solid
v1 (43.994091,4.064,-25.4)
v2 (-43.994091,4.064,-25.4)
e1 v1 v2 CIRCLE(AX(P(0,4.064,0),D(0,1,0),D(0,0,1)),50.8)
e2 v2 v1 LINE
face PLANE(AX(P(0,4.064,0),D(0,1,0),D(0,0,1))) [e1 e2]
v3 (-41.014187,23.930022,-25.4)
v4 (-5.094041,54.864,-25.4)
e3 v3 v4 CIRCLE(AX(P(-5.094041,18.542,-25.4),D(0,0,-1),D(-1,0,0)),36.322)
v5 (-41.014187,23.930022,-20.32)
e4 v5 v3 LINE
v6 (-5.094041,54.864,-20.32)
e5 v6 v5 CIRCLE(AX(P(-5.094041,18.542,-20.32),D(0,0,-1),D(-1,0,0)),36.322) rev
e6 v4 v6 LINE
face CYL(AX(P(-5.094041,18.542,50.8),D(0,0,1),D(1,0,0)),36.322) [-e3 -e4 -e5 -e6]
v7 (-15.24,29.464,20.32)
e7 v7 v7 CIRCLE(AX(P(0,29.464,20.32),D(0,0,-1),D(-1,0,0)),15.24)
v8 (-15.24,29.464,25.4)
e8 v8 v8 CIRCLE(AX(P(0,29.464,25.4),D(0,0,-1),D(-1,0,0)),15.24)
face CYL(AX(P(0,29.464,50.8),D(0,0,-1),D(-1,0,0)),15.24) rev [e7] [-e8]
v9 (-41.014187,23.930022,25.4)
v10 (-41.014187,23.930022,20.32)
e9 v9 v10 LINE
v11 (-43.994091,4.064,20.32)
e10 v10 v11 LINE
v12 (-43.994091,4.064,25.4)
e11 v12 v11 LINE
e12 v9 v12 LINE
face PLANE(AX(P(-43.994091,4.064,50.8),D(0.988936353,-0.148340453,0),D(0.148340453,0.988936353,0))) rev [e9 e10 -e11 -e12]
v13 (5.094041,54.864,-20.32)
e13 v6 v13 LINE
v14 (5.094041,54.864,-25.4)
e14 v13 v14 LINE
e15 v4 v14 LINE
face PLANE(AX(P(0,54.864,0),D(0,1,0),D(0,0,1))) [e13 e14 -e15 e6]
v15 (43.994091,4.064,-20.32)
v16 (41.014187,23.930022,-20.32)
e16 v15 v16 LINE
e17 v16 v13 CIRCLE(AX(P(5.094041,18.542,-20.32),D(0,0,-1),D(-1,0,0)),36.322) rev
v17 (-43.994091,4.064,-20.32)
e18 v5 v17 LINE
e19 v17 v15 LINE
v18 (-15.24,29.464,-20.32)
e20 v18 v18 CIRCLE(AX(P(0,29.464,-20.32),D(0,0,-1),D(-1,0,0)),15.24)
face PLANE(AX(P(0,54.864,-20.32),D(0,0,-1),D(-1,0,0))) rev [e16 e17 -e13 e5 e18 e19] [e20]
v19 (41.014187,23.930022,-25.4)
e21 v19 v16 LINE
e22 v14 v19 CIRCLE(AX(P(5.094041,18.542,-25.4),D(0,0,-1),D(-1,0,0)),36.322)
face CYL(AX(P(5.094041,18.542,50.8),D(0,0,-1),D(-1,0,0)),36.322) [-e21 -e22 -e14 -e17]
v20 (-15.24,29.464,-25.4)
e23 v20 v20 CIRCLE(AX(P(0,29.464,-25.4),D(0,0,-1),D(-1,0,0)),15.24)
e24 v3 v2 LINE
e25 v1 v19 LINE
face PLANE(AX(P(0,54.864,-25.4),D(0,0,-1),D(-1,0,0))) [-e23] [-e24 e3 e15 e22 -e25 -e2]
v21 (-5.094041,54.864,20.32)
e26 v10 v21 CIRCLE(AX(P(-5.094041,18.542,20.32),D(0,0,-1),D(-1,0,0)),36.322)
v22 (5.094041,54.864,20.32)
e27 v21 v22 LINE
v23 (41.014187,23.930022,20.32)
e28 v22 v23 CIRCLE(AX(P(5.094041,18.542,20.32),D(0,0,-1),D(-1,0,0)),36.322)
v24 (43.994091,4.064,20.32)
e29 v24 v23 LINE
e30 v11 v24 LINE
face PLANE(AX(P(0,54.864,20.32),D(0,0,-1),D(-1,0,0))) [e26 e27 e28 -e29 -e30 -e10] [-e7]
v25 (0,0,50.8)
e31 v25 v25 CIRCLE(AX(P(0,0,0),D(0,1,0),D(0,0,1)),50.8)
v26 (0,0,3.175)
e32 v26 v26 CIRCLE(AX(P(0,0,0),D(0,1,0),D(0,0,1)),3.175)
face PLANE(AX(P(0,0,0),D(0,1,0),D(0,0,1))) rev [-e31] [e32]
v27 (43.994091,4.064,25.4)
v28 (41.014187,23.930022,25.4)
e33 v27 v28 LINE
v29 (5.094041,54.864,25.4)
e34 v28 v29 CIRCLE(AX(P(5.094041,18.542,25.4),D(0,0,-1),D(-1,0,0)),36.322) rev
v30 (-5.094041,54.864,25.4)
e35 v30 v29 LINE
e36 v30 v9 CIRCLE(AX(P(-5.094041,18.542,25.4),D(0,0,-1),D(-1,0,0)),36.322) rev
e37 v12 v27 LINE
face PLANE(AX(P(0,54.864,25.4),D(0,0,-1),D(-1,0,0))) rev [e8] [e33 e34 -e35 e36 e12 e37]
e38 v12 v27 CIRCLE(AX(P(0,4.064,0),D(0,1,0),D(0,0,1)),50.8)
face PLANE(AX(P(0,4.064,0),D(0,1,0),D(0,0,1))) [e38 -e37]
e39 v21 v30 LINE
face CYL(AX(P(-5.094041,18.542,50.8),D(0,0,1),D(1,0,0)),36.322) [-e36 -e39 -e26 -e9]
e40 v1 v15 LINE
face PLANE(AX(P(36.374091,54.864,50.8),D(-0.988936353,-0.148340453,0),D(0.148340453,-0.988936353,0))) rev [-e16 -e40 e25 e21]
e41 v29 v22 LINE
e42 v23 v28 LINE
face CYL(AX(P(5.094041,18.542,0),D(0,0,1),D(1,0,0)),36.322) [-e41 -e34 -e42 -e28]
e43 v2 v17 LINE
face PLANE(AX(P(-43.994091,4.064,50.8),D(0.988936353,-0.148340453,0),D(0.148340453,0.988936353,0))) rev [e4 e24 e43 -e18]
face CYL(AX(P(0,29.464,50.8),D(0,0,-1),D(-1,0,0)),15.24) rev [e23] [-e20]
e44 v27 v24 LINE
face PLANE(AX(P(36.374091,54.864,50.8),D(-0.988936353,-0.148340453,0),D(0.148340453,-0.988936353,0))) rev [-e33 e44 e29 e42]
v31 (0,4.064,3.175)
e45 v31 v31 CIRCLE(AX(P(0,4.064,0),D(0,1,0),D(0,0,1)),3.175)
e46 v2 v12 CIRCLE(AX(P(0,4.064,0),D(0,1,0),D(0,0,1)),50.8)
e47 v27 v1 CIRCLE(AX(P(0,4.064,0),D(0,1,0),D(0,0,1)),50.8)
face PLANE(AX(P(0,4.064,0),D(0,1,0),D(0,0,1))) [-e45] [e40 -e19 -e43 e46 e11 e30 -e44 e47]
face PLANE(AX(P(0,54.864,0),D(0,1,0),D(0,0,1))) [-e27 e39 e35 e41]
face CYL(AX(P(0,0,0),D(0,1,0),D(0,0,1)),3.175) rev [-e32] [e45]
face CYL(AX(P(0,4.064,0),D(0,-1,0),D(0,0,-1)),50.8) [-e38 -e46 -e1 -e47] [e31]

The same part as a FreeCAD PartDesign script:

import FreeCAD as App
import Part
import Sketcher

V = App.Vector
Q = App.Units.Quantity


def edges_at(feature, points):
    """Names of the edges that pass closest to the given points."""
    edges = feature.Shape.Edges
    near = lambda p: min(range(len(edges)), key=lambda i: edges[i].distToShape(Part.Vertex(*p))[0])
    return sorted({f"Edge{near(p) + 1}" for p in points})

doc = App.newDocument("Part")
body = doc.addObject("PartDesign::Body", "Body")

# Sketch on XZ plane
sketch1 = body.newObject("Sketcher::SketchObject", "Sketch")
sketch1.AttachmentSupport = (doc.getObject("XZ_Plane"), [""])
sketch1.MapMode = "FlatFace"
sketch1.addGeometry(Part.Circle(V(0, 0, 0), V(0, 0, 1), 50.8), False)
sketch1.addConstraint([
    Sketcher.Constraint("Coincident", 0, 3, -1, 1),
    Sketcher.Constraint("Diameter", 0, Q("4 in")),
])
pad1 = body.newObject("PartDesign::Pad", "Pad")
pad1.Profile = sketch1
pad1.Length = Q("0.16 in")
pad1.Reversed = True

# Sketch on XZ plane
sketch2 = body.newObject("Sketcher::SketchObject", "Sketch001")
sketch2.AttachmentSupport = (doc.getObject("XZ_Plane"), [""])
sketch2.MapMode = "FlatFace"
sketch2.AttachmentOffset = App.Placement(V(0, 0, -0.16 * 25.4), App.Rotation())
sketch2.addGeometry([
    Part.LineSegment(V(-43.994091, 20.32, 0), V(-43.994091, 25.4, 0)),  # 0
    Part.LineSegment(V(-43.994091, 25.4, 0), V(43.994091, 25.4, 0)),  # 1
    Part.LineSegment(V(43.994091, 25.4, 0), V(43.994091, 20.32, 0)),  # 2
    Part.LineSegment(V(43.994091, 20.32, 0), V(-43.994091, 20.32, 0)),  # 3
    Part.LineSegment(V(-43.994091, -25.4, 0), V(-43.994091, -20.32, 0)),  # 4
    Part.LineSegment(V(-43.994091, -20.32, 0), V(43.994091, -20.32, 0)),  # 5
    Part.LineSegment(V(43.994091, -20.32, 0), V(43.994091, -25.4, 0)),  # 6
    Part.LineSegment(V(43.994091, -25.4, 0), V(-43.994091, -25.4, 0)),  # 7
], False)
sketch2.addConstraint([
    Sketcher.Constraint("Coincident", 0, 2, 1, 1),
    Sketcher.Constraint("Coincident", 1, 2, 2, 1),
    Sketcher.Constraint("Coincident", 2, 2, 3, 1),
    Sketcher.Constraint("Coincident", 3, 2, 0, 1),
    Sketcher.Constraint("Coincident", 4, 2, 5, 1),
    Sketcher.Constraint("Coincident", 5, 2, 6, 1),
    Sketcher.Constraint("Coincident", 6, 2, 7, 1),
    Sketcher.Constraint("Coincident", 7, 2, 4, 1),
    Sketcher.Constraint("Vertical", 0),
    Sketcher.Constraint("Horizontal", 1),
    Sketcher.Constraint("Vertical", 2),
    Sketcher.Constraint("Horizontal", 3),
    Sketcher.Constraint("Vertical", 4),
    Sketcher.Constraint("Horizontal", 5),
    Sketcher.Constraint("Vertical", 6),
    Sketcher.Constraint("Horizontal", 7),
    Sketcher.Constraint("Symmetric", 2, 2, 4, 2, -1, 1),
    Sketcher.Constraint("Symmetric", 0, 2, 6, 2, -1, 1),
    Sketcher.Constraint("Vertical", 3, 2, 4, 2),
    Sketcher.Constraint("DistanceY", 0, 1, 0, 2, Q("0.2 in")),
    Sketcher.Constraint("DistanceY", -1, 1, 0, 2, Q("1 in")),
    Sketcher.Constraint("DistanceX", 1, 1, 1, 2, 87.988181),
])
pad2 = body.newObject("PartDesign::Pad", "Pad001")
pad2.Profile = sketch2
pad2.Length = Q("2 in")
pad2.Reversed = True

# Sketch on XY plane
sketch3 = body.newObject("Sketcher::SketchObject", "Sketch002")
sketch3.AttachmentSupport = (doc.getObject("XY_Plane"), [""])
sketch3.MapMode = "FlatFace"
sketch3.AttachmentOffset = App.Placement(V(0, 0, -1 * 25.4), App.Rotation())
sketch3.addGeometry([
    Part.LineSegment(V(43.994091, 54.864, 0), V(43.994091, 4.064, 0)),  # 0
    Part.LineSegment(V(43.994091, 4.064, 0), V(36.374091, 54.864, 0)),  # 1
    Part.LineSegment(V(36.374091, 54.864, 0), V(43.994091, 54.864, 0)),  # 2
    Part.LineSegment(V(-36.374091, 54.864, 0), V(-43.994091, 4.064, 0)),  # 3
    Part.LineSegment(V(-43.994091, 4.064, 0), V(-43.994091, 54.864, 0)),  # 4
    Part.LineSegment(V(-43.994091, 54.864, 0), V(-36.374091, 54.864, 0)),  # 5
], False)
sketch3.addConstraint([
    Sketcher.Constraint("Coincident", 0, 2, 1, 1),
    Sketcher.Constraint("Coincident", 1, 2, 2, 1),
    Sketcher.Constraint("Coincident", 2, 2, 0, 1),
    Sketcher.Constraint("Coincident", 3, 2, 4, 1),
    Sketcher.Constraint("Coincident", 4, 2, 5, 1),
    Sketcher.Constraint("Coincident", 5, 2, 3, 1),
    Sketcher.Constraint("Vertical", 0),
    Sketcher.Constraint("Horizontal", 2),
    Sketcher.Constraint("Vertical", 4),
    Sketcher.Constraint("Horizontal", 5),
    Sketcher.Constraint("Symmetric", 0, 2, 3, 2, -2),
    Sketcher.Constraint("Symmetric", 1, 2, 5, 2, -2),
    Sketcher.Constraint("DistanceY", 0, 2, 0, 1, Q("2 in")),
    Sketcher.Constraint("DistanceX", 2, 1, 2, 2, Q("0.3 in")),
    Sketcher.Constraint("DistanceY", -1, 1, 0, 2, Q("0.16 in")),
    Sketcher.Constraint("DistanceX", -1, 1, 0, 2, 43.994091),
])
pocket1 = body.newObject("PartDesign::Pocket", "Pocket")
pocket1.Profile = sketch3
pocket1.Type = "ThroughAll"
pocket1.Reversed = True
doc.recompute()

fillet = body.newObject("PartDesign::Fillet", "Fillet")
fillet.Base = (pocket1, edges_at(pocket1, [
    (36.374, 54.864, -22.86),
    (36.374, 54.864, 22.86),
    (-36.374, 54.864, -22.86),
    (-36.374, 54.864, 22.86),
]))
fillet.Radius = Q("1.43 in")

# Sketch on XY plane
sketch4 = body.newObject("Sketcher::SketchObject", "Sketch003")
sketch4.AttachmentSupport = (doc.getObject("XY_Plane"), [""])
sketch4.MapMode = "FlatFace"
sketch4.AttachmentOffset = App.Placement(V(0, 0, -1 * 25.4), App.Rotation())
sketch4.addGeometry(Part.Circle(V(0, 29.464, 0), V(0, 0, 1), 15.24), False)
sketch4.addConstraint([
    Sketcher.Constraint("PointOnObject", 0, 3, -2),
    Sketcher.Constraint("Diameter", 0, Q("1.2 in")),
    Sketcher.Constraint("DistanceY", -1, 1, 0, 3, Q("1.16 in")),
])
pocket2 = body.newObject("PartDesign::Pocket", "Pocket001")
pocket2.Profile = sketch4
pocket2.Type = "ThroughAll"
pocket2.Reversed = True

# Sketch on XZ plane
sketch5 = body.newObject("Sketcher::SketchObject", "Sketch004")
sketch5.AttachmentSupport = (doc.getObject("XZ_Plane"), [""])
sketch5.MapMode = "FlatFace"
sketch5.AttachmentOffset = App.Placement(V(0, 0, -0.16 * 25.4), App.Rotation())
sketch5.addGeometry(Part.Circle(V(0, 0, 0), V(0, 0, 1), 3.175), False)
sketch5.addConstraint([
    Sketcher.Constraint("Coincident", 0, 3, -1, 1),
    Sketcher.Constraint("Diameter", 0, Q("0.25 in")),
])
pocket3 = body.newObject("PartDesign::Pocket", "Pocket002")
pocket3.Profile = sketch5
pocket3.Type = "ThroughAll"
pocket3.Reversed = True

doc.recompute()
